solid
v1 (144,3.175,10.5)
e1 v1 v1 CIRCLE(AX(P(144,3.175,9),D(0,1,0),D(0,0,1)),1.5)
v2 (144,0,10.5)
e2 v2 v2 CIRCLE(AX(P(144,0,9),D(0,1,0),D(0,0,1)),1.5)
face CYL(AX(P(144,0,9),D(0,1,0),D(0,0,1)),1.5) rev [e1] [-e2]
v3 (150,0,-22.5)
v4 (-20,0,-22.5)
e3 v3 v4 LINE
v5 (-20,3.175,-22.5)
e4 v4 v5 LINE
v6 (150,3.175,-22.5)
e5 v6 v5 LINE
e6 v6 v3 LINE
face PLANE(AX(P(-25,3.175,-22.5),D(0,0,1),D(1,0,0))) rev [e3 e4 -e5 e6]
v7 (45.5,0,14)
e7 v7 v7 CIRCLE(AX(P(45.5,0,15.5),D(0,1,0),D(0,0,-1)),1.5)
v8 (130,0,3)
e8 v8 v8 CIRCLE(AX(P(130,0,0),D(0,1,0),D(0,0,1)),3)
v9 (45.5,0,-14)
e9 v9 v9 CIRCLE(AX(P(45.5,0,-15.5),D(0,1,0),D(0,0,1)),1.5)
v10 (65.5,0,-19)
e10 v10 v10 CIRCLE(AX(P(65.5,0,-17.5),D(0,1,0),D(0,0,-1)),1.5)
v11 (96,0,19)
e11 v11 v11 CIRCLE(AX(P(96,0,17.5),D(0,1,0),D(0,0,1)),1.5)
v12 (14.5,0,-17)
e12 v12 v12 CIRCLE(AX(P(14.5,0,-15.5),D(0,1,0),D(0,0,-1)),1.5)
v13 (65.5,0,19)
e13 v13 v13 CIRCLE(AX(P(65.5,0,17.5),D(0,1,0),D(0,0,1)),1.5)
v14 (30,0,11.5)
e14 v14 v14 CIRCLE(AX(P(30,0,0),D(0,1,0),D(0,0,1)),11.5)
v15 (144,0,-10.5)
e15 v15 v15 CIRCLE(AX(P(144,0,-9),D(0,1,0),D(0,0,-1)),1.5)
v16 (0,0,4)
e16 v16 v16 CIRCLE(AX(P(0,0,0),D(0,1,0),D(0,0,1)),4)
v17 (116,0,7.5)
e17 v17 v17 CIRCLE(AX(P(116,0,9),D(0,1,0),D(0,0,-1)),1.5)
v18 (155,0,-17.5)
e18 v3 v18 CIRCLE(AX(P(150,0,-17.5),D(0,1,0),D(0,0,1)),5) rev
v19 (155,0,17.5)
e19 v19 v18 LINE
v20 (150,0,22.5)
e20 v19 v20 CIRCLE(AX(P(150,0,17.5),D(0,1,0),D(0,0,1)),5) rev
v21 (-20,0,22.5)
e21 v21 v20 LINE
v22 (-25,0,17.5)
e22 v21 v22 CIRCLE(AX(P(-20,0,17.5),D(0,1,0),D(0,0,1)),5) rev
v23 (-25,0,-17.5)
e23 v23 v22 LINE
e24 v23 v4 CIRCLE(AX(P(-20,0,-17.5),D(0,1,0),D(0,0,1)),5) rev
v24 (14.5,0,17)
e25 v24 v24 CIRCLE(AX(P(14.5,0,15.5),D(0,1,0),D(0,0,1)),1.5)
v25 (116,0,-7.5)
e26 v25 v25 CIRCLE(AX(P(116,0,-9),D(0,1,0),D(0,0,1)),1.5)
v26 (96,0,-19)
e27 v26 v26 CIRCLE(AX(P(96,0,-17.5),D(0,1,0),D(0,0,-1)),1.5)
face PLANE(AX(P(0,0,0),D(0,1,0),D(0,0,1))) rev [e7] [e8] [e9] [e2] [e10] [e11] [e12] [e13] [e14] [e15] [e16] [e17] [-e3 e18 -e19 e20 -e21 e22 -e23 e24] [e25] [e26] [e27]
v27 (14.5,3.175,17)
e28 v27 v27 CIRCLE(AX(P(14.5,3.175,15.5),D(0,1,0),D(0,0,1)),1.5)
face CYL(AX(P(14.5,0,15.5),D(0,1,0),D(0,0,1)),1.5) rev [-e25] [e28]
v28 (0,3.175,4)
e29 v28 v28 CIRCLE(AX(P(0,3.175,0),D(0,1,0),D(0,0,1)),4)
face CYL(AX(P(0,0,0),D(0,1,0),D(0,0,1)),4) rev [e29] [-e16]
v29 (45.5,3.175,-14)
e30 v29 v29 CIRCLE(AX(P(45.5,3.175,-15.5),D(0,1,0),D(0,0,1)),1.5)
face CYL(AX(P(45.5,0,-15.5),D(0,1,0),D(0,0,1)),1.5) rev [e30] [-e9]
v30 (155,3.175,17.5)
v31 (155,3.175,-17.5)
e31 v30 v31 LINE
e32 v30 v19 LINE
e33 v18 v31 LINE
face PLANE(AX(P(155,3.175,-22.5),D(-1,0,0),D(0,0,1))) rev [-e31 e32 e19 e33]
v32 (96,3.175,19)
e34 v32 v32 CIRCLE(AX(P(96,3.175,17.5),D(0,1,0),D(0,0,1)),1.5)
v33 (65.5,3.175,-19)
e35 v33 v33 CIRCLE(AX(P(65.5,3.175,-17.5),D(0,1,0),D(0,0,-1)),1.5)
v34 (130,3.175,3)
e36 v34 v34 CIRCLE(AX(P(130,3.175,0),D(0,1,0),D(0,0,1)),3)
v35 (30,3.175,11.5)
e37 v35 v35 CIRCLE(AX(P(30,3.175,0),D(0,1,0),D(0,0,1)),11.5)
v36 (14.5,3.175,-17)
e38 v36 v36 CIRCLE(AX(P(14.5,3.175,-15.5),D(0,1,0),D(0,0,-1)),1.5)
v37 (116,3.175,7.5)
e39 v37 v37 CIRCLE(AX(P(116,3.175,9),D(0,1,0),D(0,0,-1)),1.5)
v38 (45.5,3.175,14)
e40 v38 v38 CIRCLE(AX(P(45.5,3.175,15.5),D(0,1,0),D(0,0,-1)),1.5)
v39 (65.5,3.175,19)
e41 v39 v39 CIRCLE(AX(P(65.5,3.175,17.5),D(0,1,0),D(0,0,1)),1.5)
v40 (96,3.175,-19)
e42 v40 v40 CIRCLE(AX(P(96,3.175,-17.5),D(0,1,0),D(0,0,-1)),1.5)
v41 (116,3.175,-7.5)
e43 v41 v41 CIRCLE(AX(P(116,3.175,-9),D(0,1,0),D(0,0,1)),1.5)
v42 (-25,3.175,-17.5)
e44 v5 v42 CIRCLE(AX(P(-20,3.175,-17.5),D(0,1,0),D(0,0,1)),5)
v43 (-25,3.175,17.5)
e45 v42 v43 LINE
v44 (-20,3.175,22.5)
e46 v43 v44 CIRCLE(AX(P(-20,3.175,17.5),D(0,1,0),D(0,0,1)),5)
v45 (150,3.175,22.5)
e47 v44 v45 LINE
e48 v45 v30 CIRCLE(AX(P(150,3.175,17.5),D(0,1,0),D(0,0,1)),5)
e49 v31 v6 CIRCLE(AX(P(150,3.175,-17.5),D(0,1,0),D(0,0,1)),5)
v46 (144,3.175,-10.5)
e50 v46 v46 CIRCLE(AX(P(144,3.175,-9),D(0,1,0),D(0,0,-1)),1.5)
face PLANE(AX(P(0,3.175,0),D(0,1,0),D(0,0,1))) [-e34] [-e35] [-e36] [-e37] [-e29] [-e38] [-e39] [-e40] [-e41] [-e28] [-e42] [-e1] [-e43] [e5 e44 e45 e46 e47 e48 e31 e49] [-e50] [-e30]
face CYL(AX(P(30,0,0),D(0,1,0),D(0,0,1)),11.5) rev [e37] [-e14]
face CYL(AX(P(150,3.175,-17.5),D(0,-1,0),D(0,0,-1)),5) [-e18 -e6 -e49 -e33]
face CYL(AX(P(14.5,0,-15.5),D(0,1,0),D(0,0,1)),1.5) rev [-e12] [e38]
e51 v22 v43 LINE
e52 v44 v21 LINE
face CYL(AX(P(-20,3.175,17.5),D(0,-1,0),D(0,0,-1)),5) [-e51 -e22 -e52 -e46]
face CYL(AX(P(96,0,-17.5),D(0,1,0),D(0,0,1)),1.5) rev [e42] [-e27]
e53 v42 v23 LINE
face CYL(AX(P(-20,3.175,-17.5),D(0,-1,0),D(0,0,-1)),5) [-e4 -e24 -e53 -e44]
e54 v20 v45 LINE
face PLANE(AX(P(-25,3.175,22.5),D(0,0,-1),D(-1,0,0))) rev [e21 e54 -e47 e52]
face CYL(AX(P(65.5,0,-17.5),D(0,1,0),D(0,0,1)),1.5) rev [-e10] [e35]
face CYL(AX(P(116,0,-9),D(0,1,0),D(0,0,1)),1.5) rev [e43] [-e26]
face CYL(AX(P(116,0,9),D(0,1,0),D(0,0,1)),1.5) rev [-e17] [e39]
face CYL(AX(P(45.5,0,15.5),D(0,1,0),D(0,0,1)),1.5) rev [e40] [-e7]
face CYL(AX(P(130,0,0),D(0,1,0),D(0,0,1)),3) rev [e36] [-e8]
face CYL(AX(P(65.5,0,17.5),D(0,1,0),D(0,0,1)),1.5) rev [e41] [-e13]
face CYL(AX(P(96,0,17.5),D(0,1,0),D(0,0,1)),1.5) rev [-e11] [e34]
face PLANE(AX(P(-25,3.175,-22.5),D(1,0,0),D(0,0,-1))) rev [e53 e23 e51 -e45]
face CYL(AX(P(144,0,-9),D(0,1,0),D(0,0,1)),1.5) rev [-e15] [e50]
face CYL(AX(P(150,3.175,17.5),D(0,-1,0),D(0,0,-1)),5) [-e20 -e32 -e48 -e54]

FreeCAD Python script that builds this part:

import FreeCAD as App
import Part
import Sketcher

V = App.Vector


def edges_at(feature, points):
    """Names of the edges that pass closest to the given points."""
    edges = feature.Shape.Edges
    near = lambda p: min(range(len(edges)), key=lambda i: edges[i].distToShape(Part.Vertex(*p))[0])
    return sorted({f"Edge{near(p) + 1}" for p in points})


def add_polygon(sketch, points):
    """Adds a closed chain of lines whose ends are joined by coincident constraints."""
    first, n = sketch.GeometryCount, len(points)
    for a, b in zip(points, points[1:] + points[:1]):
        sketch.addGeometry(Part.LineSegment(App.Vector(*a, 0), App.Vector(*b, 0)), False)
    for i in range(n):
        sketch.addConstraint(Sketcher.Constraint("Coincident", first + i, 2, first + (i + 1) % n, 1))

doc = App.newDocument("Part")
body = doc.addObject("PartDesign::Body", "Body")

sketch1 = body.newObject("Sketcher::SketchObject", "Sketch")
sketch1.AttachmentSupport = (doc.getObject("XZ_Plane"), [""])
sketch1.MapMode = "FlatFace"
add_polygon(sketch1, [(-25, -22), (-25, 22), (155, 22), (155, -22)])
sketch1.addConstraint([
    Sketcher.Constraint("Vertical", 0),
    Sketcher.Constraint("Horizontal", 1),
    Sketcher.Constraint("Vertical", 2),
    Sketcher.Constraint("Horizontal", 3),
    Sketcher.Constraint("DistanceX", 1, 1, 1, 2, 180.0),
    Sketcher.Constraint("DistanceY", 0, 1, 0, 2, 45.0),
    Sketcher.Constraint("DistanceX", 0, 2, -1, 1, 25.0),
    Sketcher.Constraint("DistanceY", -1, 1, 0, 2, 22.5),
])
pad1 = body.newObject("PartDesign::Pad", "Pad")
pad1.Profile = sketch1
pad1.Length = 3.175
pad1.Reversed = True
doc.recompute()

fillet = body.newObject("PartDesign::Fillet", "Fillet")
fillet.Base = (pad1, edges_at(pad1, [
    (-25, 1.587, -22.5),
    (155, 1.587, -22.5),
    (155, 1.587, 22.5),
    (-25, 1.587, 22.5),
]))
fillet.Radius = 5

sketch2 = body.newObject("Sketcher::SketchObject", "Sketch001")
sketch2.AttachmentSupport = (doc.getObject("XZ_Plane"), [""])
sketch2.MapMode = "FlatFace"
sketch2.AttachmentOffset = App.Placement(V(0, 0, -3.175), App.Rotation())
sketch2.addGeometry([
    Part.Circle(V(130, 0, 0), V(0, 0, 1), 3),
    Part.Circle(V(116, -9, 0), V(0, 0, 1), 1.5),
    Part.Circle(V(144, -9, 0), V(0, 0, 1), 1.5),
    Part.Circle(V(144, 9, 0), V(0, 0, 1), 1.5),
    Part.Circle(V(116, 9, 0), V(0, 0, 1), 1.5),
], False)
sketch2.addConstraint([
    Sketcher.Constraint("Equal", 1, 2),
    Sketcher.Constraint("Equal", 2, 3),
    Sketcher.Constraint("Equal", 3, 4),
    Sketcher.Constraint("Symmetric", 2, 3, 3, 3, -1),
    Sketcher.Constraint("Symmetric", 1, 3, 4, 3, -1),
    Sketcher.Constraint("PointOnObject", 0, 3, -1),
    Sketcher.Constraint("Horizontal", 1, 3, 2, 3),
    Sketcher.Constraint("Diameter", 0, 6.0),
    Sketcher.Constraint("Diameter", 1, 3.0),
    Sketcher.Constraint("DistanceX", -1, 1, 0, 3, 130.0),
    Sketcher.Constraint("DistanceX", -1, 1, 1, 3, 116.0),
    Sketcher.Constraint("DistanceY", 1, 3, -1, 1, 9.0),
    Sketcher.Constraint("DistanceX", -1, 1, 2, 3, 144.0),
])
pocket1 = body.newObject("PartDesign::Pocket", "Pocket")
pocket1.Profile = sketch2
pocket1.Type = "ThroughAll"
pocket1.Reversed = True

sketch3 = body.newObject("Sketcher::SketchObject", "Sketch002")
sketch3.AttachmentSupport = (doc.getObject("XZ_Plane"), [""])
sketch3.MapMode = "FlatFace"
sketch3.AttachmentOffset = App.Placement(V(0, 0, -3.175), App.Rotation())
sketch3.addGeometry(Part.Circle(V(0, 0, 0), V(0, 0, 1), 4), False)
sketch3.addConstraint([
    Sketcher.Constraint("Coincident", 0, 3, -1, 1),
    Sketcher.Constraint("Diameter", 0, 8.0),
])
pocket2 = body.newObject("PartDesign::Pocket", "Pocket001")
pocket2.Profile = sketch3
pocket2.Type = "ThroughAll"
pocket2.Reversed = True

sketch4 = body.newObject("Sketcher::SketchObject", "Sketch003")
sketch4.AttachmentSupport = (doc.getObject("XZ_Plane"), [""])
sketch4.MapMode = "FlatFace"
sketch4.AttachmentOffset = App.Placement(V(0, 0, -3.175), App.Rotation())
sketch4.addGeometry([
    Part.Circle(V(14.5, 15.5, 0), V(0, 0, 1), 1.5),
    Part.Circle(V(14.5, -15.5, 0), V(0, 0, 1), 1.5),
    Part.Circle(V(45.5, -15.5, 0), V(0, 0, 1), 1.5),
    Part.Circle(V(45.5, 15.5, 0), V(0, 0, 1), 1.5),
    Part.Circle(V(30, 0, 0), V(0, 0, 1), 11.5),
], False)
sketch4.addConstraint([
    Sketcher.Constraint("Equal", 0, 1),
    Sketcher.Constraint("Equal", 1, 2),
    Sketcher.Constraint("Equal", 2, 3),
    Sketcher.Constraint("Symmetric", 0, 3, 1, 3, -1),
    Sketcher.Constraint("Symmetric", 2, 3, 3, 3, -1),
    Sketcher.Constraint("PointOnObject", 4, 3, -1),
    Sketcher.Constraint("Horizontal", 1, 3, 2, 3),
    Sketcher.Constraint("Diameter", 0, 3.0),
    Sketcher.Constraint("Diameter", 4, 23.0),
    Sketcher.Constraint("DistanceX", -1, 1, 4, 3, 30.0),
    Sketcher.Constraint("DistanceY", 1, 3, 0, 3, 31.0),
    Sketcher.Constraint("DistanceX", 1, 3, 2, 3, 31.0),
    Sketcher.Constraint("DistanceX", -1, 1, 0, 3, 14.5),
])
pocket3 = body.newObject("PartDesign::Pocket", "Pocket002")
pocket3.Profile = sketch4
pocket3.Type = "ThroughAll"
pocket3.Reversed = True

sketch5 = body.newObject("Sketcher::SketchObject", "Sketch004")
sketch5.AttachmentSupport = (doc.getObject("XZ_Plane"), [""])
sketch5.MapMode = "FlatFace"
sketch5.AttachmentOffset = App.Placement(V(0, 0, -3.175), App.Rotation())
sketch5.addGeometry([
    Part.Circle(V(65.5, 17.5, 0), V(0, 0, 1), 1.5),
    Part.Circle(V(96, 17.5, 0), V(0, 0, 1), 1.5),
    Part.Circle(V(96, -17.5, 0), V(0, 0, 1), 1.5),
    Part.Circle(V(65.5, -17.5, 0), V(0, 0, 1), 1.5),
], False)
sketch5.addConstraint([
    Sketcher.Constraint("Equal", 0, 1),
    Sketcher.Constraint("Equal", 1, 2),
    Sketcher.Constraint("Equal", 2, 3),
    Sketcher.Constraint("Symmetric", 1, 3, 2, 3, -1),
    Sketcher.Constraint("Symmetric", 0, 3, 3, 3, -1),
    Sketcher.Constraint("Horizontal", 0, 3, 1, 3),
    Sketcher.Constraint("Diameter", 0, 3.0),
    Sketcher.Constraint("DistanceX", -1, 1, 1, 3, 96.0),
    Sketcher.Constraint("DistanceY", 2, 3, 1, 3, 35.0),
    Sketcher.Constraint("DistanceX", -1, 1, 0, 3, 65.5),
])
pocket4 = body.newObject("PartDesign::Pocket", "Pocket003")
pocket4.Profile = sketch5
pocket4.Type = "ThroughAll"
pocket4.Reversed = True

doc.recompute()
